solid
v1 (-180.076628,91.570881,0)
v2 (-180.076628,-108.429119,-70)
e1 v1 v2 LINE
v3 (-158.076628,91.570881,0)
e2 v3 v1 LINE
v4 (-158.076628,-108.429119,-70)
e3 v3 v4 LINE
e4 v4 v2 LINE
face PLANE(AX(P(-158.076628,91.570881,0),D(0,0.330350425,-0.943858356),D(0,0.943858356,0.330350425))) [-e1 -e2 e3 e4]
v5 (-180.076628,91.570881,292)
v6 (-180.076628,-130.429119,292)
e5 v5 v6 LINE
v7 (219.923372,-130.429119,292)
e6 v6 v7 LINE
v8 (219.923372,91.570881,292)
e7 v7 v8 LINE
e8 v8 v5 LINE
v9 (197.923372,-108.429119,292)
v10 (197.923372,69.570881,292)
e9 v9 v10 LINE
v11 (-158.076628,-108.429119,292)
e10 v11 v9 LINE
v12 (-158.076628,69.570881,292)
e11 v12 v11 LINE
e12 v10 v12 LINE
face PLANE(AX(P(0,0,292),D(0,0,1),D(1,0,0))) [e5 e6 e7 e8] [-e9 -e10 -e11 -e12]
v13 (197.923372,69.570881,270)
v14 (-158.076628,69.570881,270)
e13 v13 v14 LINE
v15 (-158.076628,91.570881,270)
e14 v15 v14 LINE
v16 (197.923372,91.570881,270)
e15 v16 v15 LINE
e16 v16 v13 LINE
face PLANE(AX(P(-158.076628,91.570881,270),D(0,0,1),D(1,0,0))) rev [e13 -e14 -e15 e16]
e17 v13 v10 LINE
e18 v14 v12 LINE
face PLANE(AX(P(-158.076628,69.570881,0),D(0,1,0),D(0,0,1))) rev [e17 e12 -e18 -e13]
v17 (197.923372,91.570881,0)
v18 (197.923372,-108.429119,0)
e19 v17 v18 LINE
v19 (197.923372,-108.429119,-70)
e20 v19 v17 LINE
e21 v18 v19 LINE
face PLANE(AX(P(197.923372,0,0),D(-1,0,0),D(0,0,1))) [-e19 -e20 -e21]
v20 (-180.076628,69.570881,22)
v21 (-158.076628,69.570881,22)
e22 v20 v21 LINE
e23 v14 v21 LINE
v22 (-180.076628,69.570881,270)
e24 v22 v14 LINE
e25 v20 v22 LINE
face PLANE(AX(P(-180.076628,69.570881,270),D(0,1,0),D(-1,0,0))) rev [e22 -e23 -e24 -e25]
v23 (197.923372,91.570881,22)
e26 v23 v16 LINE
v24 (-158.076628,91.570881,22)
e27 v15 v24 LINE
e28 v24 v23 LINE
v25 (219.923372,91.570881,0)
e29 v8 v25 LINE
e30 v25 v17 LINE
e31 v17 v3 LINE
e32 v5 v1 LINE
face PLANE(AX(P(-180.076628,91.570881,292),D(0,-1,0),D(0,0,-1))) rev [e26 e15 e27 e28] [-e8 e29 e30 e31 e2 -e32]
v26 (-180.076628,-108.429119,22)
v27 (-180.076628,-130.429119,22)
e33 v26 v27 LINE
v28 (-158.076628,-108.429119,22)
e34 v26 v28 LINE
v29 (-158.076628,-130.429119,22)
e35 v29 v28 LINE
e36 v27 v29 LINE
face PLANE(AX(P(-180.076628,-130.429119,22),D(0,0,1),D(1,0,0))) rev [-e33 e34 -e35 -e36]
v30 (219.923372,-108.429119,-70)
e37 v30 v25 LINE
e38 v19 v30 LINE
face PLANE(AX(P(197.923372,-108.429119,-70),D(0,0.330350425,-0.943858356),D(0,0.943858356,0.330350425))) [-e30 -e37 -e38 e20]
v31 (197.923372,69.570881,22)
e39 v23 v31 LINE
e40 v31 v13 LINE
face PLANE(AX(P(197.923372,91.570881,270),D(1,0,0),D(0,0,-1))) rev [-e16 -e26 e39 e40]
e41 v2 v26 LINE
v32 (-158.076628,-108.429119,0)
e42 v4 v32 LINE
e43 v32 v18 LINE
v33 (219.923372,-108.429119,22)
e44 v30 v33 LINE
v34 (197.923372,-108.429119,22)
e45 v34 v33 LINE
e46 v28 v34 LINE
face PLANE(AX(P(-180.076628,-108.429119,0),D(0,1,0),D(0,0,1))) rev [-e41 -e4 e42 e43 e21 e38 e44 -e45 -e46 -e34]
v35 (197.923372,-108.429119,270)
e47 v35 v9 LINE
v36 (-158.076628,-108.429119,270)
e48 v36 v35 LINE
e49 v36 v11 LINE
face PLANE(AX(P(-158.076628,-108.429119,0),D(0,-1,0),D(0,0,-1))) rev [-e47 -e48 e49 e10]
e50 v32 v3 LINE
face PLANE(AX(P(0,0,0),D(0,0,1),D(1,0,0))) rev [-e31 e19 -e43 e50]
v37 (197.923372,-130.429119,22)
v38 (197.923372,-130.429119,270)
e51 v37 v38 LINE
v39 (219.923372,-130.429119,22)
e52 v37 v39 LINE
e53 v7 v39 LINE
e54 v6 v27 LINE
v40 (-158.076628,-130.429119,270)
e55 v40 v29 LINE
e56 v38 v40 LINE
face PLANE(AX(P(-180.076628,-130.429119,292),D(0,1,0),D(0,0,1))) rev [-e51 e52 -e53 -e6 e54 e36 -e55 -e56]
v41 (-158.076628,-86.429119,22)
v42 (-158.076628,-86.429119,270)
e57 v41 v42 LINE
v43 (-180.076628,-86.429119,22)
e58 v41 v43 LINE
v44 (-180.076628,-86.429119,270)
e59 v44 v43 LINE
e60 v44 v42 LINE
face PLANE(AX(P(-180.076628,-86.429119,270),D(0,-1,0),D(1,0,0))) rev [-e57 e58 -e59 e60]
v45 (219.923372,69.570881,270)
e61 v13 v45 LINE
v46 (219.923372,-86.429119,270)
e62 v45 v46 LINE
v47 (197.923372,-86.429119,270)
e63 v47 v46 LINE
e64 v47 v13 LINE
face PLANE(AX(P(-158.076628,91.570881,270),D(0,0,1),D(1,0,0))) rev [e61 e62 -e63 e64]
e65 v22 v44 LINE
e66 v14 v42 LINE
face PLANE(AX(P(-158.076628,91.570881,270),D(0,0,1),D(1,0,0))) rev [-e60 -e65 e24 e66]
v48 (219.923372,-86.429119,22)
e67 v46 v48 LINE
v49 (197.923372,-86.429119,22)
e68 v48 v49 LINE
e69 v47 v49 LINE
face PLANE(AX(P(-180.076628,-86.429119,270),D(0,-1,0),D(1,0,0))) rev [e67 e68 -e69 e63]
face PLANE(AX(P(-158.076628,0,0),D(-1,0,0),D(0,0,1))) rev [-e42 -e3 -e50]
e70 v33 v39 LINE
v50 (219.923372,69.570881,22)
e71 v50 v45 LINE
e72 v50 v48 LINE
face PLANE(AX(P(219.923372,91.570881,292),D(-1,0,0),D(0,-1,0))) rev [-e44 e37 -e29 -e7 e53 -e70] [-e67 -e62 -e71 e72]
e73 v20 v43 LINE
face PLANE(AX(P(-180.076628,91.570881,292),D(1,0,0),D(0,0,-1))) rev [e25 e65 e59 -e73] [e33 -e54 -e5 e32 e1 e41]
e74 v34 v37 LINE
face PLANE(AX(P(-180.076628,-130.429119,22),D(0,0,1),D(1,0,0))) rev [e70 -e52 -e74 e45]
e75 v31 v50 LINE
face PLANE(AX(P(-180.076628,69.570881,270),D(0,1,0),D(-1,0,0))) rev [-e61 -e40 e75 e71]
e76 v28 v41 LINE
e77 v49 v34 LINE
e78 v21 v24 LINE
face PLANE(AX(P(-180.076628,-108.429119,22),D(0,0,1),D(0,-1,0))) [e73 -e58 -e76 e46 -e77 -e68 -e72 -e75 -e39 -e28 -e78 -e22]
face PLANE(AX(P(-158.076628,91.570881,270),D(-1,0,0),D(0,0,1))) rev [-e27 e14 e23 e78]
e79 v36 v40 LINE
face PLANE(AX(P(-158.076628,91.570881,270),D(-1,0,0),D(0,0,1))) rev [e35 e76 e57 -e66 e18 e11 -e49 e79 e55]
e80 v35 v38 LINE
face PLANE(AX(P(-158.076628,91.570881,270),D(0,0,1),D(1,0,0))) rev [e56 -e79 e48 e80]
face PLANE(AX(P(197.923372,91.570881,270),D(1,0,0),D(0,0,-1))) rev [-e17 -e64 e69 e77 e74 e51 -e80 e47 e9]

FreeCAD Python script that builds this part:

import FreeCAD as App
import Part
import Sketcher


def add_polygon(sketch, points):
    """Adds a closed chain of lines whose ends are joined by coincident constraints."""
    first, n = sketch.GeometryCount, len(points)
    for a, b in zip(points, points[1:] + points[:1]):
        sketch.addGeometry(Part.LineSegment(App.Vector(*a, 0), App.Vector(*b, 0)), False)
    for i in range(n):
        sketch.addConstraint(Sketcher.Constraint("Coincident", first + i, 2, first + (i + 1) % n, 1))

doc = App.newDocument("Part")
body = doc.addObject("PartDesign::Body", "Body")

# Sketch on XY plane
sketch1 = body.newObject("Sketcher::SketchObject", "Sketch")
sketch1.AttachmentSupport = (doc.getObject("XY_Plane"), [""])
sketch1.MapMode = "FlatFace"
add_polygon(sketch1, [(-180, 92), (-180, -130), (220, -130), (220, 92)])  # lines 0-3
sketch1.addConstraint([
    Sketcher.Constraint("Vertical", 0),
    Sketcher.Constraint("Horizontal", 1),
    Sketcher.Constraint("Vertical", 2),
    Sketcher.Constraint("Horizontal", 3),
    Sketcher.Constraint("DistanceX", 1, 1, 1, 2, 400.0),
    Sketcher.Constraint("DistanceY", 0, 2, 0, 1, 222.0),
    Sketcher.Constraint("DistanceX", 0, 2, -1, 1, 180.076628),
    Sketcher.Constraint("DistanceY", 0, 2, -1, 1, 130.429119),
])
pad1 = body.newObject("PartDesign::Pad", "Pad")
pad1.Profile = sketch1
pad1.Length = 292

# Sketch on XZ plane
sketch2 = body.newObject("Sketcher::SketchObject", "Sketch001")
sketch2.AttachmentSupport = (doc.getObject("XZ_Plane"), [""])
sketch2.MapMode = "FlatFace"
sketch2.AttachmentOffset = App.Placement(App.Vector(0, 0, 130.429119), App.Rotation())
add_polygon(sketch2, [(-158, 270), (-158, 0), (198, 0), (198, 270)])  # lines 0-3
sketch2.addConstraint([
    Sketcher.Constraint("Vertical", 0),
    Sketcher.Constraint("Horizontal", 1),
    Sketcher.Constraint("Vertical", 2),
    Sketcher.Constraint("Horizontal", 3),
    Sketcher.Constraint("PointOnObject", 0, 2, -1),
    Sketcher.Constraint("DistanceX", 1, 1, 1, 2, 356.0),
    Sketcher.Constraint("DistanceY", 0, 2, 0, 1, 270.0),
    Sketcher.Constraint("DistanceX", 0, 2, -1, 1, 158.076628),
])
pocket1 = body.newObject("PartDesign::Pocket", "Pocket")
pocket1.Profile = sketch2
pocket1.Type = "ThroughAll"

# Sketch on YZ plane
sketch3 = body.newObject("Sketcher::SketchObject", "Sketch002")
sketch3.AttachmentSupport = (doc.getObject("YZ_Plane"), [""])
sketch3.MapMode = "FlatFace"
sketch3.AttachmentOffset = App.Placement(App.Vector(0, 0, 219.923372), App.Rotation())
add_polygon(sketch3, [(70, 270), (-86, 270), (-86, 0), (70, 0)])  # lines 0-3
sketch3.addConstraint([
    Sketcher.Constraint("Horizontal", 0),
    Sketcher.Constraint("Vertical", 1),
    Sketcher.Constraint("Horizontal", 2),
    Sketcher.Constraint("Vertical", 3),
    Sketcher.Constraint("PointOnObject", 1, 2, -1),
    Sketcher.Constraint("DistanceX", 0, 2, 0, 1, 156.0),
    Sketcher.Constraint("DistanceY", 1, 2, 1, 1, 270.0),
    Sketcher.Constraint("DistanceX", 0, 2, -1, 1, 86.429119),
])
pocket2 = body.newObject("PartDesign::Pocket", "Pocket001")
pocket2.Profile = sketch3
pocket2.Type = "ThroughAll"

# Sketch on XY plane
sketch4 = body.newObject("Sketcher::SketchObject", "Sketch003")
sketch4.AttachmentSupport = (doc.getObject("XY_Plane"), [""])
sketch4.MapMode = "FlatFace"
sketch4.AttachmentOffset = App.Placement(App.Vector(0, 0, 292), App.Rotation())
add_polygon(sketch4, [(-158, 70), (-158, -108), (198, -108), (198, 70)])  # lines 0-3
sketch4.addConstraint([
    Sketcher.Constraint("Vertical", 0),
    Sketcher.Constraint("Horizontal", 1),
    Sketcher.Constraint("Vertical", 2),
    Sketcher.Constraint("Horizontal", 3),
    Sketcher.Constraint("DistanceX", 1, 1, 1, 2, 356.0),
    Sketcher.Constraint("DistanceY", 0, 2, 0, 1, 178.0),
    Sketcher.Constraint("DistanceX", 0, 2, -1, 1, 158.076628),
    Sketcher.Constraint("DistanceY", 0, 2, -1, 1, 108.429119),
])
pocket3 = body.newObject("PartDesign::Pocket", "Pocket002")
pocket3.Profile = sketch4
pocket3.Type = "ThroughAll"

# Sketch on YZ plane
sketch5 = body.newObject("Sketcher::SketchObject", "Sketch004")
sketch5.AttachmentSupport = (doc.getObject("YZ_Plane"), [""])
sketch5.MapMode = "FlatFace"
sketch5.AttachmentOffset = App.Placement(App.Vector(0, 0, 219.923372), App.Rotation())
add_polygon(sketch5, [(-108, 22), (-130, 22), (-130, 0), (-108, 0)])  # lines 0-3
sketch5.addConstraint([
    Sketcher.Constraint("Horizontal", 0),
    Sketcher.Constraint("Vertical", 1),
    Sketcher.Constraint("Horizontal", 2),
    Sketcher.Constraint("Vertical", 3),
    Sketcher.Constraint("PointOnObject", 1, 2, -1),
    Sketcher.Constraint("Equal", 2, 1),
    Sketcher.Constraint("DistanceX", 0, 2, 0, 1, 22.0),
    Sketcher.Constraint("DistanceX", 0, 2, -1, 1, 130.429119),
])
pocket4 = body.newObject("PartDesign::Pocket", "Pocket003")
pocket4.Profile = sketch5
pocket4.Length = 400

# Sketch on YZ plane
sketch6 = body.newObject("Sketcher::SketchObject", "Sketch005")
sketch6.AttachmentSupport = (doc.getObject("YZ_Plane"), [""])
sketch6.MapMode = "FlatFace"
sketch6.AttachmentOffset = App.Placement(App.Vector(0, 0, 219.923372), App.Rotation())
add_polygon(sketch6, [(92, 22), (-108, 22), (-108, 0), (92, 0)])  # lines 0-3
sketch6.addConstraint([
    Sketcher.Constraint("Horizontal", 0),
    Sketcher.Constraint("Vertical", 1),
    Sketcher.Constraint("Horizontal", 2),
    Sketcher.Constraint("Vertical", 3),
    Sketcher.Constraint("PointOnObject", 1, 2, -1),
    Sketcher.Constraint("DistanceX", 0, 2, 0, 1, 200.0),
    Sketcher.Constraint("DistanceY", 1, 2, 1, 1, 22.0),
    Sketcher.Constraint("DistanceX", 0, 2, -1, 1, 108.429119),
])
pad2 = body.newObject("PartDesign::Pad", "Pad001")
pad2.Profile = sketch6
pad2.Length = 400
pad2.Reversed = True

# Sketch on YZ plane
sketch7 = body.newObject("Sketcher::SketchObject", "Sketch006")
sketch7.AttachmentSupport = (doc.getObject("YZ_Plane"), [""])
sketch7.MapMode = "FlatFace"
sketch7.AttachmentOffset = App.Placement(App.Vector(0, 0, 219.923372), App.Rotation())
add_polygon(sketch7, [(-108, -70), (92, 0), (-108, 0)])  # lines 0-2
sketch7.addConstraint([
    Sketcher.Constraint("Horizontal", 1),
    Sketcher.Constraint("Vertical", 2),
    Sketcher.Constraint("PointOnObject", 0, 2, -1),
    Sketcher.Constraint("DistanceX", 1, 2, 1, 1, 200.0),
    Sketcher.Constraint("DistanceY", 2, 2, 2, 1, 70.0),
    Sketcher.Constraint("DistanceX", -1, 1, 0, 2, 91.570881),
])
pad3 = body.newObject("PartDesign::Pad", "Pad002")
pad3.Profile = sketch7
pad3.Length = 22
pad3.Reversed = True

# Sketch on YZ plane
sketch8 = body.newObject("Sketcher::SketchObject", "Sketch007")
sketch8.AttachmentSupport = (doc.getObject("YZ_Plane"), [""])
sketch8.MapMode = "FlatFace"
sketch8.AttachmentOffset = App.Placement(App.Vector(0, 0, -180.076628), App.Rotation())
add_polygon(sketch8, [(-108, -70), (-108, 0), (92, 0)])  # lines 0-2
sketch8.addConstraint([
    Sketcher.Constraint("Vertical", 0),
    Sketcher.Constraint("Horizontal", 1),
    Sketcher.Constraint("PointOnObject", 0, 2, -1),
    Sketcher.Constraint("DistanceX", 1, 1, 1, 2, 200.0),
    Sketcher.Constraint("DistanceY", 0, 1, 0, 2, 70.0),
    Sketcher.Constraint("DistanceX", 0, 2, -1, 1, 108.429119),
])
pad4 = body.newObject("PartDesign::Pad", "Pad003")
pad4.Profile = sketch8
pad4.Length = 22

doc.recompute()
